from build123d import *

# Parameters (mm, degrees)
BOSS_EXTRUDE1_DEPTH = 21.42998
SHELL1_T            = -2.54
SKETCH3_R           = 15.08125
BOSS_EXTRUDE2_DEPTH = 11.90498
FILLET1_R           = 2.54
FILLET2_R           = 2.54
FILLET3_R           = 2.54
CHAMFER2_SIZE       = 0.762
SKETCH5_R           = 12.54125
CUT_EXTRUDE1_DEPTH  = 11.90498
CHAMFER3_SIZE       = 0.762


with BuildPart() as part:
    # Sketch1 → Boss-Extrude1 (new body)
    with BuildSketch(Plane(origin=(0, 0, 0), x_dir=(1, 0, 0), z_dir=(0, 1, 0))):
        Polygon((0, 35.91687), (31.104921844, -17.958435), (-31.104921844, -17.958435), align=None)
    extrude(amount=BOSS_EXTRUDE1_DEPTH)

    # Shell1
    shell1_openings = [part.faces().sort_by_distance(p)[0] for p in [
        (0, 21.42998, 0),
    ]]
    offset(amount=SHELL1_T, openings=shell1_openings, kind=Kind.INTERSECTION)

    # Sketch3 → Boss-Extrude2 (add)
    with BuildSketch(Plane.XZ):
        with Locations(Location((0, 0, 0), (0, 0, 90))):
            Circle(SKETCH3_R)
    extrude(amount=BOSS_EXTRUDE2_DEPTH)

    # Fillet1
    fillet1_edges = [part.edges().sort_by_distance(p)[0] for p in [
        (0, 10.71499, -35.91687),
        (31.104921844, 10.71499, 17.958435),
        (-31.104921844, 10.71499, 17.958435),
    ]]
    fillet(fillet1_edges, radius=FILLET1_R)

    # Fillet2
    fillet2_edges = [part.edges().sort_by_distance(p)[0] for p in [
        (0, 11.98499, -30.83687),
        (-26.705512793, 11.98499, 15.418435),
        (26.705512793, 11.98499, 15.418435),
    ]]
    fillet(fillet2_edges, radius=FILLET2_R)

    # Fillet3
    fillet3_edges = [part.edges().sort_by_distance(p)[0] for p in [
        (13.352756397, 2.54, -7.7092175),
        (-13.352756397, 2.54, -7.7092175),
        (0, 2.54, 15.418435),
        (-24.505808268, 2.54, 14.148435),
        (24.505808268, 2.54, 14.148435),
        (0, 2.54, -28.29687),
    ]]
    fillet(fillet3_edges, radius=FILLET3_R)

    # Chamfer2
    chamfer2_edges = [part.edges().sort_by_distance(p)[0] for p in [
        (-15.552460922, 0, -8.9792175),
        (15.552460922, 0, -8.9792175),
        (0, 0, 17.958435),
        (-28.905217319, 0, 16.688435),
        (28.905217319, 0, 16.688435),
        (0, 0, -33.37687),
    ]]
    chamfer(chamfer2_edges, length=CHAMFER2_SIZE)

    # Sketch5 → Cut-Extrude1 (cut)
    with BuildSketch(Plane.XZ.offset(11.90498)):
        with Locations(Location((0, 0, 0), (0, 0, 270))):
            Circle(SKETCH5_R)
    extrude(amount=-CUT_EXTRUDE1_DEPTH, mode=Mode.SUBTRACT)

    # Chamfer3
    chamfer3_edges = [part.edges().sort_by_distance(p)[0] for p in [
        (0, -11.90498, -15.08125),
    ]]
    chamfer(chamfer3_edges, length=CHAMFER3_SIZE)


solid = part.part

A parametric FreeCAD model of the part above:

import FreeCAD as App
import Part
import Sketcher
from FreeCAD import Vector
Q = App.Units.Quantity


def edges_at(feature, points):
    """Names of the edges that pass closest to the given points."""
    edges = feature.Shape.Edges
    near = lambda p: min(range(len(edges)), key=lambda i: edges[i].distToShape(Part.Vertex(*p))[0])
    return sorted({f"Edge{near(p) + 1}" for p in points})


def faces_at(feature, points):
    """Names of the faces that lie closest to the given points."""
    faces = feature.Shape.Faces
    near = lambda p: min(range(len(faces)), key=lambda i: faces[i].distToShape(Part.Vertex(*p))[0])
    return sorted({f"Face{near(p) + 1}" for p in points})

doc = App.newDocument("Part")
params = doc.addObject("Spreadsheet::Sheet", "Params")
for row, (alias, value) in enumerate([
    ("pad1_length", "0.8437 in"),
    ("thickness_wall", "0.1 in"),
    ("sketch2_diameter", "1.1875 in"),
    ("pad2_length", "0.4687 in"),
    ("fillet_radius", "0.1 in"),
    ("fillet2_radius", "0.1 in"),
    ("fillet3_radius", "0.1 in"),
    ("chamfer_size", "0.03 in"),
    ("pocket1_length", "0.4687 in"),
    ("chamfer2_size", "0.03 in"),
], start=1):
    params.set(f"A{row}", alias)
    params.set(f"B{row}", "=" + value)
    params.setAlias(f"B{row}", alias)

body = doc.addObject("PartDesign::Body", "Body")

# Sketch on XZ plane
sketch1 = doc.addObject("Sketcher::SketchObject", "Sketch")
body.addObject(sketch1)
sketch1.AttachmentSupport = (doc.XZ_Plane, [""])
sketch1.MapMode = "FlatFace"
sketch1.addGeometry([
    Part.LineSegment(Vector(31.104922, 17.958435, 0), Vector(0, -35.91687, 0)),
    Part.LineSegment(Vector(0, -35.91687, 0), Vector(-31.104922, 17.958435, 0)),
    Part.LineSegment(Vector(-31.104922, 17.958435, 0), Vector(31.104922, 17.958435, 0)),
], False)
sketch1.addConstraint([
    Sketcher.Constraint("Coincident", 0, 2, 1, 1),
    Sketcher.Constraint("Coincident", 1, 2, 2, 1),
    Sketcher.Constraint("Coincident", 2, 2, 0, 1),
    Sketcher.Constraint("Horizontal", 2),
    Sketcher.Constraint("PointOnObject", 0, 2, -2),
    Sketcher.Constraint("Equal", 0, 1),
    Sketcher.Constraint("Angle", 0, Q("-120 deg")),
    Sketcher.Constraint("DistanceX", 2, 1, 2, 2, Q("62.209844 mm")),
    Sketcher.Constraint("DistanceY", 0, 2, -1, 1, Q("35.91687 mm")),
])
pad1 = doc.addObject("PartDesign::Pad", "Pad")
body.addObject(pad1)
pad1.Profile = sketch1
pad1.setExpression("Length", "Params.pad1_length")
pad1.Reversed = True
doc.recompute()

thickness = doc.addObject("PartDesign::Thickness", "Thickness")
body.addObject(thickness)
thickness.Base = (pad1, faces_at(pad1, [(0, 21.43, -8.979)]))
thickness.setExpression("Value", "Params.thickness_wall")
thickness.Reversed = True
thickness.Join = "Intersection"

# Sketch on XZ plane
sketch2 = doc.addObject("Sketcher::SketchObject", "Sketch001")
body.addObject(sketch2)
sketch2.AttachmentSupport = (doc.XZ_Plane, [""])
sketch2.MapMode = "FlatFace"
sketch2.addGeometry(Part.Circle(Vector(0, 0, 0), Vector(0, 0, 1), 15.08125), False)
sketch2.addConstraint([
    Sketcher.Constraint("Coincident", 0, 3, -1, 1),
    Sketcher.Constraint("Diameter", 0, Q("1.1875 in")),
])
sketch2.setExpression("Constraints[1]", "Params.sketch2_diameter")
pad2 = doc.addObject("PartDesign::Pad", "Pad001")
body.addObject(pad2)
pad2.Profile = sketch2
pad2.setExpression("Length", "Params.pad2_length")
doc.recompute()

fillet = doc.addObject("PartDesign::Fillet", "Fillet")
body.addObject(fillet)
fillet.Base = (pad2, edges_at(pad2, [(0, 10.715, -35.917), (31.105, 10.715, 17.958), (-31.105, 10.715, 17.958)]))
fillet.setExpression("Radius", "Params.fillet_radius")
doc.recompute()

fillet2 = doc.addObject("PartDesign::Fillet", "Fillet001")
body.addObject(fillet2)
fillet2.Base = (fillet, edges_at(fillet, [(0, 11.985, -30.837), (-26.706, 11.985, 15.418), (26.706, 11.985, 15.418)]))
fillet2.setExpression("Radius", "Params.fillet2_radius")
doc.recompute()

fillet3 = doc.addObject("PartDesign::Fillet", "Fillet002")
body.addObject(fillet3)
fillet3.Base = (fillet2, edges_at(fillet2, [
    (13.353, 2.54, -7.709),
    (-13.353, 2.54, -7.709),
    (0, 2.54, 15.418),
    (-24.506, 2.54, 14.148),
    (24.506, 2.54, 14.148),
    (0, 2.54, -28.297),
]))
fillet3.setExpression("Radius", "Params.fillet3_radius")
doc.recompute()

chamfer = doc.addObject("PartDesign::Chamfer", "Chamfer")
body.addObject(chamfer)
chamfer.Base = (fillet3, edges_at(fillet3, [
    (-15.552, 0, -8.979),
    (15.552, 0, -8.979),
    (0, 0, 17.958),
    (-28.905, 0, 16.688),
    (28.905, 0, 16.688),
    (0, 0, -33.377),
]))
chamfer.setExpression("Size", "Params.chamfer_size")

# Sketch on XZ plane
sketch3 = doc.addObject("Sketcher::SketchObject", "Sketch002")
body.addObject(sketch3)
sketch3.AttachmentSupport = (doc.XZ_Plane, [""])
sketch3.MapMode = "FlatFace"
sketch3.AttachmentOffset = App.Placement(Vector(0, 0, 0.4687 * 25.4), App.Rotation())
sketch3.addGeometry(Part.Circle(Vector(0, 0, 0), Vector(0, 0, 1), 12.54125), False)
sketch3.addConstraint([
    Sketcher.Constraint("Coincident", 0, 3, -1, 1),
    Sketcher.Constraint("Diameter", 0, Q("0.9875 in")),
])
pocket1 = doc.addObject("PartDesign::Pocket", "Pocket")
body.addObject(pocket1)
pocket1.Profile = sketch3
pocket1.setExpression("Length", "Params.pocket1_length")
doc.recompute()

chamfer2 = doc.addObject("PartDesign::Chamfer", "Chamfer001")
body.addObject(chamfer2)
chamfer2.Base = (pocket1, edges_at(pocket1, [(0, -11.905, -15.081)]))
chamfer2.setExpression("Size", "Params.chamfer2_size")

doc.recompute()
